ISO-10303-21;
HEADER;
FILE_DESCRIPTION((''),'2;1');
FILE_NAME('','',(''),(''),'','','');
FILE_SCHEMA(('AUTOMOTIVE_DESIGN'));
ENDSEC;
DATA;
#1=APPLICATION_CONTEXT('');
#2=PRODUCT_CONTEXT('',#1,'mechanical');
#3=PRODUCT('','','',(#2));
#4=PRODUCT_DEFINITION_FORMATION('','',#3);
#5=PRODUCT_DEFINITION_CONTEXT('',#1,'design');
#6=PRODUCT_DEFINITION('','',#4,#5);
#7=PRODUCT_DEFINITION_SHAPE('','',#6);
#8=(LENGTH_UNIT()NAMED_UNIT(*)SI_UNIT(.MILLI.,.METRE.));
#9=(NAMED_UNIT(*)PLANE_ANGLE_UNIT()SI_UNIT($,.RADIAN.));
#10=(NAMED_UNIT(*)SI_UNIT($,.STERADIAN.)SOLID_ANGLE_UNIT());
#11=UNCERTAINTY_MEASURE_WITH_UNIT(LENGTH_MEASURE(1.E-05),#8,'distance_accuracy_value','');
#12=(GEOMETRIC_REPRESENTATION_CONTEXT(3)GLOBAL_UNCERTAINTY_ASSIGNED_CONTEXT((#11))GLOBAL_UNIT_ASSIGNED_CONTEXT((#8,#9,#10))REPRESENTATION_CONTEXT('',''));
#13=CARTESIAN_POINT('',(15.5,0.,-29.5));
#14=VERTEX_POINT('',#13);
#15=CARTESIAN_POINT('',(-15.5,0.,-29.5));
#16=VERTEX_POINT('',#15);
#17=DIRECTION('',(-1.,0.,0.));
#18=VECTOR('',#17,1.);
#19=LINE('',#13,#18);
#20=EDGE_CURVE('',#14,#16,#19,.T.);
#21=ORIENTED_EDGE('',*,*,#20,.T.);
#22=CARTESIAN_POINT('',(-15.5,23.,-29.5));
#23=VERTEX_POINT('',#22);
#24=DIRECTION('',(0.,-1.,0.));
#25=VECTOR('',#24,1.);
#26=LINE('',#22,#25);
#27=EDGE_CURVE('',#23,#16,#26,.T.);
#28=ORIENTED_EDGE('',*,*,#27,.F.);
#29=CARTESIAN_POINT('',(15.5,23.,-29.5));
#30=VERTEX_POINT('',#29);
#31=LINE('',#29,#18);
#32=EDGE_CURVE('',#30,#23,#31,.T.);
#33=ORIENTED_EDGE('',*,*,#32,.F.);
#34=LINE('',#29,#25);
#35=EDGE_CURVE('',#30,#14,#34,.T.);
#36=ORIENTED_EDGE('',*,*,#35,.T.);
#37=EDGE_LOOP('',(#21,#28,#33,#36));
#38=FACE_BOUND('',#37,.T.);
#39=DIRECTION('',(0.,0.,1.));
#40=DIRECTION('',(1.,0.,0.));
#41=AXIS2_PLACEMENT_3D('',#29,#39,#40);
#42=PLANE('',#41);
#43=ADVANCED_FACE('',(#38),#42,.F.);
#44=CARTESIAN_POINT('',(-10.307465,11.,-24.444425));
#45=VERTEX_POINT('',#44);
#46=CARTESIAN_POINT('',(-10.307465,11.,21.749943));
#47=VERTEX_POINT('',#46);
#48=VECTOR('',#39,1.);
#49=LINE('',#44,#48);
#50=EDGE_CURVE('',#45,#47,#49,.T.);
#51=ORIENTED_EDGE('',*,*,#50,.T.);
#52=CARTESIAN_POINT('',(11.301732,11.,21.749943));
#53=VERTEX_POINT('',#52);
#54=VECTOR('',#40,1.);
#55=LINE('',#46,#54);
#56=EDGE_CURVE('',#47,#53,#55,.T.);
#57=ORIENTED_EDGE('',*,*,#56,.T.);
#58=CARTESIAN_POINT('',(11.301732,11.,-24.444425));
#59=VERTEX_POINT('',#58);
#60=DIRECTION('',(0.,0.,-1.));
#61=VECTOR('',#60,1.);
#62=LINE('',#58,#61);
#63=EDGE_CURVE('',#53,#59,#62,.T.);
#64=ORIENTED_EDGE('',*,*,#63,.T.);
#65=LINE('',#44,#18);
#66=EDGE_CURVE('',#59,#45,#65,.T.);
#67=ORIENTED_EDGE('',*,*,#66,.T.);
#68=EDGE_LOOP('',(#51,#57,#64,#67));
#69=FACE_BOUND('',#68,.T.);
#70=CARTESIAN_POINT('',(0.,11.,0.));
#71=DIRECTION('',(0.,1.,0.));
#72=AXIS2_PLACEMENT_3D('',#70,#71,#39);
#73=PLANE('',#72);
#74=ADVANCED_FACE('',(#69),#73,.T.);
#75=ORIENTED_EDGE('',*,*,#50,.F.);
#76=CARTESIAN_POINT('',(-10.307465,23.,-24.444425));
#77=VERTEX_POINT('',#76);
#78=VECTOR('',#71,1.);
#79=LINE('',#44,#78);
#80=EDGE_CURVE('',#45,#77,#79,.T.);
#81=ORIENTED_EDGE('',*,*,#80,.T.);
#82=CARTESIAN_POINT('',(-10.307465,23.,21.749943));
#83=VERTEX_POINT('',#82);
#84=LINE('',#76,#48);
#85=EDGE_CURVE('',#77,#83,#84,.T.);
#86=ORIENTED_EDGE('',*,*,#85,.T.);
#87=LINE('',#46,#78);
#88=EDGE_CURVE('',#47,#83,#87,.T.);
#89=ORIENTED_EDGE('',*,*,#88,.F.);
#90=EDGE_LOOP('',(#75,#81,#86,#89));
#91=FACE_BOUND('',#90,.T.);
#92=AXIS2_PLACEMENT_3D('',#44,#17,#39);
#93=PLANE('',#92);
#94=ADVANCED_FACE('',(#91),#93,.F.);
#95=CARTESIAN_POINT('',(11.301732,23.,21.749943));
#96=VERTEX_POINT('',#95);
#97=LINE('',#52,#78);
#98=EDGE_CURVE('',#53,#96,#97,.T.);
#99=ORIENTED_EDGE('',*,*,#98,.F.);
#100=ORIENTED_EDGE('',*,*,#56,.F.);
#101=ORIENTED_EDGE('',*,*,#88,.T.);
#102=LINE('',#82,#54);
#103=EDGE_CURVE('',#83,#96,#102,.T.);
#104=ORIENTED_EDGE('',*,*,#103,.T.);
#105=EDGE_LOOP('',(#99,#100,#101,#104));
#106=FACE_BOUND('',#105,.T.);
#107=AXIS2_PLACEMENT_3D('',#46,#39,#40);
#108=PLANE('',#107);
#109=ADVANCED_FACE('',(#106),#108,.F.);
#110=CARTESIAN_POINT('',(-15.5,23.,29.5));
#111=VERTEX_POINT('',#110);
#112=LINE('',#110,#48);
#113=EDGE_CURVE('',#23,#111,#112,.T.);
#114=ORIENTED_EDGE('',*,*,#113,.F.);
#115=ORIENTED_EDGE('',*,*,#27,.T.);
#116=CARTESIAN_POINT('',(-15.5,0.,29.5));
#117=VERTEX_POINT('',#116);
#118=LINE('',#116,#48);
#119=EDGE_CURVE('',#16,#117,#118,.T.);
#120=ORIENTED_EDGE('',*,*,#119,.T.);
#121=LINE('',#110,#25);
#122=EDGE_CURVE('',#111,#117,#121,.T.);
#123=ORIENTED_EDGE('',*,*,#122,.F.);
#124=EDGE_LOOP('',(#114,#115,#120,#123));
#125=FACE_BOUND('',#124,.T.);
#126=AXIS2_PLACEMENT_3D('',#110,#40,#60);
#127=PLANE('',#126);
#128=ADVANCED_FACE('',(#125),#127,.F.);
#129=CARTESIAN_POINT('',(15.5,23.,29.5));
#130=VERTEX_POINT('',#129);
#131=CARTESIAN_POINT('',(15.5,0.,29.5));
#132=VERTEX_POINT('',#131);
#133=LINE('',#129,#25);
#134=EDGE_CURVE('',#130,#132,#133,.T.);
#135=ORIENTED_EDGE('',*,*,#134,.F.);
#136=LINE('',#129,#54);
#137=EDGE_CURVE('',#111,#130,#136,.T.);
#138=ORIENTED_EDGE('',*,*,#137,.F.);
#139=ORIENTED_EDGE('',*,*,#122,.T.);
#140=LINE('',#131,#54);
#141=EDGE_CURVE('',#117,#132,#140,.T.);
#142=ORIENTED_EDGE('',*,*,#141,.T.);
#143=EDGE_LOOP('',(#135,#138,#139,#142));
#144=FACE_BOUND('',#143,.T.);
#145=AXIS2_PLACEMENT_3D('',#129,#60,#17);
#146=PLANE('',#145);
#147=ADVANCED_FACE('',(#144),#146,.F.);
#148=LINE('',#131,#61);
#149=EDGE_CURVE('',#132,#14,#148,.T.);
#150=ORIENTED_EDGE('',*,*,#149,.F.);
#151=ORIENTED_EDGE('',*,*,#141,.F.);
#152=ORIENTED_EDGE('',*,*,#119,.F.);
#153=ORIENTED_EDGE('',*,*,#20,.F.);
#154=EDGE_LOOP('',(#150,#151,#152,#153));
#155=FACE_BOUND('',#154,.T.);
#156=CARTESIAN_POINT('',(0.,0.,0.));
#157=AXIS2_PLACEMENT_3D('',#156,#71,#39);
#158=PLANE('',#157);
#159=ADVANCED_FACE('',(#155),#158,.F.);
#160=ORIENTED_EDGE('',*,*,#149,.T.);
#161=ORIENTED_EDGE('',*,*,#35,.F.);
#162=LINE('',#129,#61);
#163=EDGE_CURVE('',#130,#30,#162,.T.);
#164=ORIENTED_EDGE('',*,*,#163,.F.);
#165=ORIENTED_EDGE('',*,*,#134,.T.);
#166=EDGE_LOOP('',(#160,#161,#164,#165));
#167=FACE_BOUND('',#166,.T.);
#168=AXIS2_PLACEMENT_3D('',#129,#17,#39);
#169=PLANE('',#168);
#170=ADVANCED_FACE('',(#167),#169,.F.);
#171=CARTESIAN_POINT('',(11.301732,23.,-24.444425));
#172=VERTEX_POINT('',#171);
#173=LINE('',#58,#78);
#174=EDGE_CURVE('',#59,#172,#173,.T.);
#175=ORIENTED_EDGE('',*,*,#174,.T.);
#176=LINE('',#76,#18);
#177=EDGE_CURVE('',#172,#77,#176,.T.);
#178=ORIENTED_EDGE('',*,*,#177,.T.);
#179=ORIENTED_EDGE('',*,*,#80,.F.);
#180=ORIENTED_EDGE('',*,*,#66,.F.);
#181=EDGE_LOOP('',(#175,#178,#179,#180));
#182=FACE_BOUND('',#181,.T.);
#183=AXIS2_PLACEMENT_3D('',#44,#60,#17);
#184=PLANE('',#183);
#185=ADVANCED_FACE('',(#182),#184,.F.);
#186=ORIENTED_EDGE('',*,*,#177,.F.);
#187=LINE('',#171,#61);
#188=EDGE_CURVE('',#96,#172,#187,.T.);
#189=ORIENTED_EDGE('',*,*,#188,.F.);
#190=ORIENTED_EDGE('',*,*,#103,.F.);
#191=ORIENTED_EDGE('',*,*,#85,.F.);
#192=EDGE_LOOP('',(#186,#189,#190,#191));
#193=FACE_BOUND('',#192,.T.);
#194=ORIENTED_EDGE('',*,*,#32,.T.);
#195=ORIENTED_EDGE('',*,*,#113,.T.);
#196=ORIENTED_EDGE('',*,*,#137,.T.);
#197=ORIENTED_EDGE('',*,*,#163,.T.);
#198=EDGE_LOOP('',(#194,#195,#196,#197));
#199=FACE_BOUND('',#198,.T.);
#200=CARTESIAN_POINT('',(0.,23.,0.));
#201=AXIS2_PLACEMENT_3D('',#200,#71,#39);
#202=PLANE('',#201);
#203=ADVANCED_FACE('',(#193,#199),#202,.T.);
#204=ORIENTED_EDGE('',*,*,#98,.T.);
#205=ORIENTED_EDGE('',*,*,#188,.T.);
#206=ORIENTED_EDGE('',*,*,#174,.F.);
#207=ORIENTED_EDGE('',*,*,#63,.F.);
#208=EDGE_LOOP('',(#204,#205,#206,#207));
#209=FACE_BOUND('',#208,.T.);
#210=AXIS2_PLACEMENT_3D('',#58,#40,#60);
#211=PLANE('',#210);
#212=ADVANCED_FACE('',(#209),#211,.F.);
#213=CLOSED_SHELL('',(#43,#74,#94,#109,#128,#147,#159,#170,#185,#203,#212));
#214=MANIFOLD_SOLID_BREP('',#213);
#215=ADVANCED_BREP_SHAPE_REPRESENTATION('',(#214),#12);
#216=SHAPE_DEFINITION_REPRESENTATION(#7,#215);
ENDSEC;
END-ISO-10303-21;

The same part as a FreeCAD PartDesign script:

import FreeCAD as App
import Part
import Sketcher
Q = App.Units.Quantity


def add_polygon(sketch, points):
    """Adds a closed chain of lines whose ends are joined by coincident constraints."""
    first, n = sketch.GeometryCount, len(points)
    for a, b in zip(points, points[1:] + points[:1]):
        sketch.addGeometry(Part.LineSegment(App.Vector(*a, 0), App.Vector(*b, 0)), False)
    for i in range(n):
        sketch.addConstraint(Sketcher.Constraint("Coincident", first + i, 2, first + (i + 1) % n, 1))

doc = App.newDocument("Part")
body = doc.addObject("PartDesign::Body", "Body")

# Sketch on XZ plane
sketch1 = doc.addObject("Sketcher::SketchObject", "Sketch")
body.addObject(sketch1)
sketch1.AttachmentSupport = (doc.XZ_Plane, [""])
sketch1.MapMode = "FlatFace"
add_polygon(sketch1, [(-16, -30), (-16, 30), (16, 30), (16, -30)])  # lines 0-3
sketch1.addConstraint([
    Sketcher.Constraint("Vertical", 0),
    Sketcher.Constraint("Horizontal", 1),
    Sketcher.Constraint("Vertical", 2),
    Sketcher.Constraint("Horizontal", 3),
    Sketcher.Constraint("Symmetric", 0, 2, 2, 2, -1, 1),
    Sketcher.Constraint("DistanceX", 1, 1, 1, 2, Q("31 mm")),
    Sketcher.Constraint("DistanceY", 0, 1, 0, 2, Q("59 mm")),
])
pad1 = doc.addObject("PartDesign::Pad", "Pad")
body.addObject(pad1)
pad1.Profile = sketch1
pad1.Length = 23
pad1.Reversed = True

# Sketch on XZ plane
sketch2 = doc.addObject("Sketcher::SketchObject", "Sketch001")
body.addObject(sketch2)
sketch2.AttachmentSupport = (doc.XZ_Plane, [""])
sketch2.MapMode = "FlatFace"
sketch2.AttachmentOffset = App.Placement(App.Vector(0, 0, -23), App.Rotation())
add_polygon(sketch2, [(-10, -24), (-10, 22), (11, 22), (11, -24)])  # lines 0-3
sketch2.addConstraint([
    Sketcher.Constraint("Vertical", 0),
    Sketcher.Constraint("Horizontal", 1),
    Sketcher.Constraint("Vertical", 2),
    Sketcher.Constraint("Horizontal", 3),
    Sketcher.Constraint("DistanceY", 0, 1, 0, 2, Q("46.194369 mm")),
    Sketcher.Constraint("DistanceX", 1, 1, 1, 2, Q("21.609197 mm")),
    Sketcher.Constraint("DistanceX", -1, 1, 1, 2, Q("11.301732 mm")),
    Sketcher.Constraint("DistanceY", -1, 1, 0, 2, Q("21.749943 mm")),
])
pocket1 = doc.addObject("PartDesign::Pocket", "Pocket")
body.addObject(pocket1)
pocket1.Profile = sketch2
pocket1.Length = 12
pocket1.Reversed = True

doc.recompute()
